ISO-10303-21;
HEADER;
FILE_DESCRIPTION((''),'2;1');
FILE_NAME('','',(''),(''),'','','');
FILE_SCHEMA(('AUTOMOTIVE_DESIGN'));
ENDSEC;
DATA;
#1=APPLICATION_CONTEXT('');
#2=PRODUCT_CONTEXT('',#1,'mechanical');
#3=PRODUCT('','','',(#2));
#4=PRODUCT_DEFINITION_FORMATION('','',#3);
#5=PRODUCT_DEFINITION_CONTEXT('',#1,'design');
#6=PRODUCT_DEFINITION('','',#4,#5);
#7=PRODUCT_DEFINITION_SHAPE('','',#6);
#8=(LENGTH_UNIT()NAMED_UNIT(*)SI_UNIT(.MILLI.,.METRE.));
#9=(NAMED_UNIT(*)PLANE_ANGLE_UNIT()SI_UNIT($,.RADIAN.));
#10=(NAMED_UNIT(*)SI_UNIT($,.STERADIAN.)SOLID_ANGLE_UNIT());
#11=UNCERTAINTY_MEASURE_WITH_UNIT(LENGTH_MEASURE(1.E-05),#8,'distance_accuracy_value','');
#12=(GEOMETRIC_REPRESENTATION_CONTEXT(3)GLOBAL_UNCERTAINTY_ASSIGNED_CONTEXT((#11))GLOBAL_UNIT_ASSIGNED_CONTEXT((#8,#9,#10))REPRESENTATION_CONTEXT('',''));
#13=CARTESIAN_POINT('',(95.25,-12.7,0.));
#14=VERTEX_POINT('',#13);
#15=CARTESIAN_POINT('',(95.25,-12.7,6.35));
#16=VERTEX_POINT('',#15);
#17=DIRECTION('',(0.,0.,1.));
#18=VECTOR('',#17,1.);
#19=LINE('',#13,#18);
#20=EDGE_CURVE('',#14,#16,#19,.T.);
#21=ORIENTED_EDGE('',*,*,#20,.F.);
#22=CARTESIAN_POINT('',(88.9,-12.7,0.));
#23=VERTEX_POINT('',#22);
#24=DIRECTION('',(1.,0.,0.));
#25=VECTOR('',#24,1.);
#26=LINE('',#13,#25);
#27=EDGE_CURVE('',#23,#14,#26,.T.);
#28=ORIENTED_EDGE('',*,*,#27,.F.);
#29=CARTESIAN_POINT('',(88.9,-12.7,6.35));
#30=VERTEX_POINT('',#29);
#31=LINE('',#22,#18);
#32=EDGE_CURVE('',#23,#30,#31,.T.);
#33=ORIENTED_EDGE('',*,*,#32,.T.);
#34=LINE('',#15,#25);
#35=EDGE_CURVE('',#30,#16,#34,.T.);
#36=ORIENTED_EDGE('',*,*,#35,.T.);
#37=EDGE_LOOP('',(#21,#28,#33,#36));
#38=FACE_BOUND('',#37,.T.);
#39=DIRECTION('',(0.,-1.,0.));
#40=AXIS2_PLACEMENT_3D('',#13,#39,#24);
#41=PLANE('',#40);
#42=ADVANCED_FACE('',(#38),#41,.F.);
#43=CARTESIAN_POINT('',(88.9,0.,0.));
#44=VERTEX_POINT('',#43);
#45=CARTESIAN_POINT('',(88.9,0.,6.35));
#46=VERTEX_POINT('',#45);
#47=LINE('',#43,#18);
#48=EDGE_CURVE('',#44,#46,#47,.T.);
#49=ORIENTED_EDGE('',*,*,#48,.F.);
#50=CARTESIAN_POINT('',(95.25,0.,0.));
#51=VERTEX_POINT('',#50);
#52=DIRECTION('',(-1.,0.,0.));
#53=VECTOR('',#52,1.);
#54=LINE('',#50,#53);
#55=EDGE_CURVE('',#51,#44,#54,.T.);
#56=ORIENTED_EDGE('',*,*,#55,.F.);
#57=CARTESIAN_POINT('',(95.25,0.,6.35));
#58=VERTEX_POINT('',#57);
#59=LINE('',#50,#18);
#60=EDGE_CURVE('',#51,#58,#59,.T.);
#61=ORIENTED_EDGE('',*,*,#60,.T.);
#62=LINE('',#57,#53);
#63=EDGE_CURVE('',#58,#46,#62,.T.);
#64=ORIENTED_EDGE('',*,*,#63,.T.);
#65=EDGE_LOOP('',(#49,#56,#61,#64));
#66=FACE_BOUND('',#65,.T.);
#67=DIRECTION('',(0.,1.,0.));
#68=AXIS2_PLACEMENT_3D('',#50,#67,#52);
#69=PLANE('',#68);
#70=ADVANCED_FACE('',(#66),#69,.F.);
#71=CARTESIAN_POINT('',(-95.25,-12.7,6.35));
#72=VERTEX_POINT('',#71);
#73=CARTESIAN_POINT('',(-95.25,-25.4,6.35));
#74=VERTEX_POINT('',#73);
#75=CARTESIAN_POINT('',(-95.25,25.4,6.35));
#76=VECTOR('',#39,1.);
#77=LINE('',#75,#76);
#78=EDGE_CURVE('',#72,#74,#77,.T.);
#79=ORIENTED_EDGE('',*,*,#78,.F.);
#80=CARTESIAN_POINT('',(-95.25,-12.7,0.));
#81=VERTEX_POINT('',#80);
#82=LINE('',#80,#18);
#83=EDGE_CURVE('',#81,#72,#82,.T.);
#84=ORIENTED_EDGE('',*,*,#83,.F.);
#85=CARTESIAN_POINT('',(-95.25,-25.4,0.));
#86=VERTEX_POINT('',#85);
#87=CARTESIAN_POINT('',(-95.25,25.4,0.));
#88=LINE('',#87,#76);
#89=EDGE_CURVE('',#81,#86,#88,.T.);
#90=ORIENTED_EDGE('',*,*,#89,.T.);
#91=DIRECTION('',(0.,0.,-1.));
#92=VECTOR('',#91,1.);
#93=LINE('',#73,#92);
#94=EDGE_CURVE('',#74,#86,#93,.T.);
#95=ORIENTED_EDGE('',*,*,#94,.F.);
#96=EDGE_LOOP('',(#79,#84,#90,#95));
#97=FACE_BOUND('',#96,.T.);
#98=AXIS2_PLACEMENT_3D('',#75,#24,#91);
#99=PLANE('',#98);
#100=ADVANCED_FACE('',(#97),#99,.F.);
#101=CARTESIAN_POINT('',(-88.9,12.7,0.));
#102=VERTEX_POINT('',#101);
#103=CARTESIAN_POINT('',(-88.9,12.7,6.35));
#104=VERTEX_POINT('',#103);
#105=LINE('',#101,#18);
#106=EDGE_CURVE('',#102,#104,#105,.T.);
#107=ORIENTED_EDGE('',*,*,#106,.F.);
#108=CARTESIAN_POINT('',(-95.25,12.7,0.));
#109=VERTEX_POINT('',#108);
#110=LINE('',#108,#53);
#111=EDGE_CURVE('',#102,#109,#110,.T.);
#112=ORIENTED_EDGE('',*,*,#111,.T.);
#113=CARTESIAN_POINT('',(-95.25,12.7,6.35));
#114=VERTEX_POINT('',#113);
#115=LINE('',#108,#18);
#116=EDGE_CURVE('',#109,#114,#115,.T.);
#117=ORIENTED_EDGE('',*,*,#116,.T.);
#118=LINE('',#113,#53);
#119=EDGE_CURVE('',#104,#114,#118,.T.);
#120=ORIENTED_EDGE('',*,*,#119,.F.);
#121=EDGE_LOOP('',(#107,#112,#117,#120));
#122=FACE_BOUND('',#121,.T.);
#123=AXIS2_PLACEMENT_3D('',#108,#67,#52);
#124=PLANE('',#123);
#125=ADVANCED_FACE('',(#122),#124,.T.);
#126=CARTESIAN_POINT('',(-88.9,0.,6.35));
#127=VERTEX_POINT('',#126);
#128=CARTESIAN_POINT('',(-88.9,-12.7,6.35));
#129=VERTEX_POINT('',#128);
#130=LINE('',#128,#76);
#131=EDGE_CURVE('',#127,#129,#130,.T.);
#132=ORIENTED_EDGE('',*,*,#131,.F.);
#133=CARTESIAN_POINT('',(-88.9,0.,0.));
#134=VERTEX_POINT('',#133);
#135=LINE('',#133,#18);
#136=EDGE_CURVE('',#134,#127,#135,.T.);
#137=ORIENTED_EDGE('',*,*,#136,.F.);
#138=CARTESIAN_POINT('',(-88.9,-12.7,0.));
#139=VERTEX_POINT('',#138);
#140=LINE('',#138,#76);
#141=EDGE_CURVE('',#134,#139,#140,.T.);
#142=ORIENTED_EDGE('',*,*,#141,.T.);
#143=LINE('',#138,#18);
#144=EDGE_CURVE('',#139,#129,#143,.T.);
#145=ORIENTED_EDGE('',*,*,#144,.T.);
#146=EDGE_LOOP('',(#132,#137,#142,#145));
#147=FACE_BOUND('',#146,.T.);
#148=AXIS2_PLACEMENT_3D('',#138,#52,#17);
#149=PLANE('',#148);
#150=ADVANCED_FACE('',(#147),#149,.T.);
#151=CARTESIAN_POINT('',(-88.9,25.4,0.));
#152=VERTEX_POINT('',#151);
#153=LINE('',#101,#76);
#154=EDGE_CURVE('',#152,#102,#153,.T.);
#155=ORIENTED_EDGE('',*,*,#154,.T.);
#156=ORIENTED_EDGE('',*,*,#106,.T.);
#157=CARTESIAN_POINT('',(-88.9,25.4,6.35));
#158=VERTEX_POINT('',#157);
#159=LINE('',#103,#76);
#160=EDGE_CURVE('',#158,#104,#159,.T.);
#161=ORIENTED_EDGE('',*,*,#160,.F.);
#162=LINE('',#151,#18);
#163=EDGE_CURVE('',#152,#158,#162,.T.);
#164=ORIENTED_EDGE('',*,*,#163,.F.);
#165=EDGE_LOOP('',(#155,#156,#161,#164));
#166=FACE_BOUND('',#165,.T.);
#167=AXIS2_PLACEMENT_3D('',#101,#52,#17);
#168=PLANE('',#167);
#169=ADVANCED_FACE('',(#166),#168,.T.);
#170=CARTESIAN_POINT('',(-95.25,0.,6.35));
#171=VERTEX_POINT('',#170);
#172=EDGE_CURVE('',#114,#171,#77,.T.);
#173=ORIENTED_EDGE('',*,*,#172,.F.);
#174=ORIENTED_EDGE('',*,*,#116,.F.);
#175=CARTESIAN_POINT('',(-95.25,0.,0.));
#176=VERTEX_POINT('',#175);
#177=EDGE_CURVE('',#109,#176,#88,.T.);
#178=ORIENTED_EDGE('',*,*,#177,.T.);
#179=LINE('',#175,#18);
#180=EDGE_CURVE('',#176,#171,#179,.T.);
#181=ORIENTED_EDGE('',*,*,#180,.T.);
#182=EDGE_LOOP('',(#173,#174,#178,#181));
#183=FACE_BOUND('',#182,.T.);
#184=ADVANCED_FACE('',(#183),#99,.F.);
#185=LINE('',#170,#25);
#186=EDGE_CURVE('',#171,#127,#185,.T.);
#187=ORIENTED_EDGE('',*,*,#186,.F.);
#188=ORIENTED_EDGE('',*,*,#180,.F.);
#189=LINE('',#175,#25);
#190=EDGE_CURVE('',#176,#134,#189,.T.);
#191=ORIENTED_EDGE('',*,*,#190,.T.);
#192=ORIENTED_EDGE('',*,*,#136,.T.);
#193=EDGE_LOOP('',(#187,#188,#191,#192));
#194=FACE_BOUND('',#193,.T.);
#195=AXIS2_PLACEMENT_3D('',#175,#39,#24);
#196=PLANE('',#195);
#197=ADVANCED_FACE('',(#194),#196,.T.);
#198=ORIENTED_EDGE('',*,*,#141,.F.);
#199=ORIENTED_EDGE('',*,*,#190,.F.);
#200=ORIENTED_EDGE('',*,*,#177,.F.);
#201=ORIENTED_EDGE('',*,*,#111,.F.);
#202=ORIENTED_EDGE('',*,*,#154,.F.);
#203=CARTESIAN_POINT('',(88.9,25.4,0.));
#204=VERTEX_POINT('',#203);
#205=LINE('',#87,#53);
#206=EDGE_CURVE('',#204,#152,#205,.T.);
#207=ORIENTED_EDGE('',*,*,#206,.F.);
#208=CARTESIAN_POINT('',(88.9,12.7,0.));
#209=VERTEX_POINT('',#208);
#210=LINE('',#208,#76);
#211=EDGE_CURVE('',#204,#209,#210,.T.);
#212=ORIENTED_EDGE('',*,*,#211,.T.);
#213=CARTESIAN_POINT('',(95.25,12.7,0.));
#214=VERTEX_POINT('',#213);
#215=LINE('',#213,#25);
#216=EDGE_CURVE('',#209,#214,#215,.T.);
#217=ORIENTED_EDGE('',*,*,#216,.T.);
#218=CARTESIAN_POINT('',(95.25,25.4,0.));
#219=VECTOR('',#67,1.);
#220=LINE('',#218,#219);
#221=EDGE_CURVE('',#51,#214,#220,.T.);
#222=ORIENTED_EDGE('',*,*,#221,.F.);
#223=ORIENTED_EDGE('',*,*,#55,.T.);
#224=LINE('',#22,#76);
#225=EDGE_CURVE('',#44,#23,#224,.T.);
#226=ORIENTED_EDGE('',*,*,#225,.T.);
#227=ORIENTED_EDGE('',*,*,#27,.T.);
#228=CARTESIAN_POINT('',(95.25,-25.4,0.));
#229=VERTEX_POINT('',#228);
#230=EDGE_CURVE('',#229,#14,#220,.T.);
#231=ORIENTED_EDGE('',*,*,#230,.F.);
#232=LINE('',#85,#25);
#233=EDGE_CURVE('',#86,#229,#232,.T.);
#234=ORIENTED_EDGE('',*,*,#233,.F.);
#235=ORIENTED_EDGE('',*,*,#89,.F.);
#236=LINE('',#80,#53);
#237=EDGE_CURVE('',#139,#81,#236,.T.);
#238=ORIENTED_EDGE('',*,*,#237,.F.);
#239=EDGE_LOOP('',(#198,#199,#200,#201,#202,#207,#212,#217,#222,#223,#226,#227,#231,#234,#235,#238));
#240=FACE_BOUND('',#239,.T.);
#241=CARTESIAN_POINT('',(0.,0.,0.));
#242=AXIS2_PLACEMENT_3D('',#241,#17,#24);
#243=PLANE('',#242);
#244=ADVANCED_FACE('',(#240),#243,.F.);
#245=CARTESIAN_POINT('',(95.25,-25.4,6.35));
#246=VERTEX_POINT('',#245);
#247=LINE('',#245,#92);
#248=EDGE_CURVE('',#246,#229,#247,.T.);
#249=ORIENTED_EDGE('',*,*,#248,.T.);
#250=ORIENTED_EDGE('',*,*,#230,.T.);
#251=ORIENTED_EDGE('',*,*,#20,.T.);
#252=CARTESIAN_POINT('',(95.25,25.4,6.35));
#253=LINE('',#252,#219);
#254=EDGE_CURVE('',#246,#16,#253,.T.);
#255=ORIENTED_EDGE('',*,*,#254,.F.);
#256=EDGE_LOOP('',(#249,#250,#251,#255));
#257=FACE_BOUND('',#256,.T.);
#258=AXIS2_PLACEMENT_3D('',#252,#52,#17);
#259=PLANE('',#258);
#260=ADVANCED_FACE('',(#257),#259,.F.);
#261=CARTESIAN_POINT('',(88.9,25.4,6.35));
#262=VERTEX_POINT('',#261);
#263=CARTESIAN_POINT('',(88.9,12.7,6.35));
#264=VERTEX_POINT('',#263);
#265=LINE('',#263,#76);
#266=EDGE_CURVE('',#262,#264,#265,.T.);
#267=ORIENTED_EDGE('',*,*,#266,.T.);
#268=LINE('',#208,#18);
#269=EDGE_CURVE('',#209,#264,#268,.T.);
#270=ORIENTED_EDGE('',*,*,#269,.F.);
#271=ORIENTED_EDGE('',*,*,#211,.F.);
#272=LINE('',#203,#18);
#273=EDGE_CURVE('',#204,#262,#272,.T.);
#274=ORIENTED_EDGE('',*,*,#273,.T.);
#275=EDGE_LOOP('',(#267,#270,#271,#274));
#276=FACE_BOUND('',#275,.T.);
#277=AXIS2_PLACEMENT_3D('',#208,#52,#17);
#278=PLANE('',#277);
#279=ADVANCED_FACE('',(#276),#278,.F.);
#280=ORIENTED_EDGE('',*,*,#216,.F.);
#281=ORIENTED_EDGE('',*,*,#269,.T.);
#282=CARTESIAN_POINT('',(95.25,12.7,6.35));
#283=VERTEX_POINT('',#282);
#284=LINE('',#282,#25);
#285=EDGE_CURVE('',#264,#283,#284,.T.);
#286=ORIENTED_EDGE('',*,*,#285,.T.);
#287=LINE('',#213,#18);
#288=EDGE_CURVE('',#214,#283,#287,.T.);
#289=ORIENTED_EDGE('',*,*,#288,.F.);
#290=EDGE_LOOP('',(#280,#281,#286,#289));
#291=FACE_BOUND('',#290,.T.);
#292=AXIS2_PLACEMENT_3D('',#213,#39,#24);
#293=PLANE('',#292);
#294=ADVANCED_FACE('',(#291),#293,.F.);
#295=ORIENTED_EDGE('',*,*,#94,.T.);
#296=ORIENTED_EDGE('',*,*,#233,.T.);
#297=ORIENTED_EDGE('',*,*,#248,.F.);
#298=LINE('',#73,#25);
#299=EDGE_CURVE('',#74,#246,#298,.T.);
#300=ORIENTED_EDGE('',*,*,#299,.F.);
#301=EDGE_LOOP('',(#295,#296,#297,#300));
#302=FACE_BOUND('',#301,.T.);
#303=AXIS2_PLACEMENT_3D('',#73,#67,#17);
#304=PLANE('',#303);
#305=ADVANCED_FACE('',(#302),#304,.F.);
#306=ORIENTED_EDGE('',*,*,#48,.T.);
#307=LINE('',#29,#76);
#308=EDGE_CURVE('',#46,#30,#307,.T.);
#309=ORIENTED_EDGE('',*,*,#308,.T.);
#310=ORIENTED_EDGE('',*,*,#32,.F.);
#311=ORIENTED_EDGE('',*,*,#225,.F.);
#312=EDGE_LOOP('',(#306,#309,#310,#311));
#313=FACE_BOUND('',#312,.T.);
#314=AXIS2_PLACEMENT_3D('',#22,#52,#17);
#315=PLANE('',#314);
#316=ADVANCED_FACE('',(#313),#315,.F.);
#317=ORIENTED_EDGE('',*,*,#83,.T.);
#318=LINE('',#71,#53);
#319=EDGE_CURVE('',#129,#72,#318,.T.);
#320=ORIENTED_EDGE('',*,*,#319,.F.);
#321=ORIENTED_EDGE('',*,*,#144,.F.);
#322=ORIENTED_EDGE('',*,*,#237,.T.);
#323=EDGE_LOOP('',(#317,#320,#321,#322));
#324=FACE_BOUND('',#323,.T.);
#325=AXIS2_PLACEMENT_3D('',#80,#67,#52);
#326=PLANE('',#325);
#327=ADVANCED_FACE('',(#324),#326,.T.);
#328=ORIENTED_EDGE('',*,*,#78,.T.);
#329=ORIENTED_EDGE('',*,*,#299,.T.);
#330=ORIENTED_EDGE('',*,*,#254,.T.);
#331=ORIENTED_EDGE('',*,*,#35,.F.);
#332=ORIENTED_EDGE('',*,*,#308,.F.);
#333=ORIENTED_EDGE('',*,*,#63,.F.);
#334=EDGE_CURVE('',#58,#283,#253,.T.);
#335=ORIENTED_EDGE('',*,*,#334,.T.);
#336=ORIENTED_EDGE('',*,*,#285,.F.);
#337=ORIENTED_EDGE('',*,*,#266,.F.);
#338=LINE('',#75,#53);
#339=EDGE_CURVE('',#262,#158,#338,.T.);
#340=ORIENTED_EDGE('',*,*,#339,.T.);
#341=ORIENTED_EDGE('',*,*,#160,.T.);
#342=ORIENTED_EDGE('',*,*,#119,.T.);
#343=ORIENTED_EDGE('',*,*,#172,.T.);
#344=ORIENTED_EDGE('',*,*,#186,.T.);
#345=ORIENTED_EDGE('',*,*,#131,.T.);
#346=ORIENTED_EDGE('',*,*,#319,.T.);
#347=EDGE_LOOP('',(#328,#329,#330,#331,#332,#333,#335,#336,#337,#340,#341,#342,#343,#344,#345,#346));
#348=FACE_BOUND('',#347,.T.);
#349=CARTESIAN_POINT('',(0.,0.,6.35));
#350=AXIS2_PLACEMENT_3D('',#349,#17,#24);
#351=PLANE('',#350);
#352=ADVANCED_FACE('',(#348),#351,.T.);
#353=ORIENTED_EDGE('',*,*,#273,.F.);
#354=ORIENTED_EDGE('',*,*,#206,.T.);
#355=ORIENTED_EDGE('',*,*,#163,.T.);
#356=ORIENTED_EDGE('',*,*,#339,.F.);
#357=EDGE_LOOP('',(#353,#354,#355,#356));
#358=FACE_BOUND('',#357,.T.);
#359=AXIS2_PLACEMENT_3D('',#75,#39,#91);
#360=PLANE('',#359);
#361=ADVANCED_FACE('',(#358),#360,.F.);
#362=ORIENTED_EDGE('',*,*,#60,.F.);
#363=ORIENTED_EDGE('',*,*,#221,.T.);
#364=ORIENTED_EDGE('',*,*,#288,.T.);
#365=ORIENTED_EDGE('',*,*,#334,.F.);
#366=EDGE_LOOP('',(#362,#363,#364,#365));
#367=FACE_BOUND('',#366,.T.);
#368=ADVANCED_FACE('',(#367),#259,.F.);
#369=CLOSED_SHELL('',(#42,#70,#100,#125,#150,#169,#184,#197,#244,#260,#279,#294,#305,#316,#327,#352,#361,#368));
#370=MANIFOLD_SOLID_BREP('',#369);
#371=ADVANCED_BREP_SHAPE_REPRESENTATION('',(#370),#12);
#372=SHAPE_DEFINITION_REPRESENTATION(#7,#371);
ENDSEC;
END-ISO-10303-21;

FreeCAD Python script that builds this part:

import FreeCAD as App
import Part
import Sketcher
from FreeCAD import Vector
Q = App.Units.Quantity


def add_polygon(sketch, points):
    """Adds a closed chain of lines whose ends are joined by coincident constraints."""
    first, n = sketch.GeometryCount, len(points)
    for a, b in zip(points, points[1:] + points[:1]):
        sketch.addGeometry(Part.LineSegment(App.Vector(*a, 0), App.Vector(*b, 0)), False)
    for i in range(n):
        sketch.addConstraint(Sketcher.Constraint("Coincident", first + i, 2, first + (i + 1) % n, 1))

doc = App.newDocument("Part")
params = doc.addObject("Spreadsheet::Sheet", "Params")
for row, (alias, value) in enumerate([
    ("sketch1_height", "2 in"),
    ("sketch1_width", "7.5 in"),
    ("pad1_length", "0.25 in"),
    ("sketch2_height", "0.5 in"),
    ("sketch2_width", "0.25 in"),
    ("linearpattern_pitch", "1 in"),
    ("sketch3_height", "0.5 in"),
    ("sketch3_width", "0.25 in"),
], start=1):
    params.set(f"A{row}", alias)
    params.set(f"B{row}", "=" + value)
    params.setAlias(f"B{row}", alias)

body = doc.addObject("PartDesign::Body", "Body")

sketch1 = doc.addObject("Sketcher::SketchObject", "Sketch")
body.addObject(sketch1)
sketch1.AttachmentSupport = (doc.XY_Plane, [""])
sketch1.MapMode = "FlatFace"
add_polygon(sketch1, [(-95.25, 25.4), (-95.25, -25.4), (95.25, -25.4), (95.25, 25.4)])
sketch1.addConstraint([
    Sketcher.Constraint("Vertical", 0),
    Sketcher.Constraint("Horizontal", 1),
    Sketcher.Constraint("Vertical", 2),
    Sketcher.Constraint("Horizontal", 3),
    Sketcher.Constraint("Symmetric", 0, 2, 2, 2, -1, 1),
    Sketcher.Constraint("DistanceY", 0, 2, 0, 1, Q("2 in")),
    Sketcher.Constraint("DistanceX", 1, 1, 1, 2, Q("7.5 in")),
])
sketch1.setExpression("Constraints[9]", "Params.sketch1_height")
sketch1.setExpression("Constraints[10]", "Params.sketch1_width")
pad1 = doc.addObject("PartDesign::Pad", "Pad")
body.addObject(pad1)
pad1.Profile = sketch1
pad1.setExpression("Length", "Params.pad1_length")

sketch2 = doc.addObject("Sketcher::SketchObject", "Sketch001")
body.addObject(sketch2)
sketch2.AttachmentSupport = (doc.XY_Plane, [""])
sketch2.MapMode = "FlatFace"
sketch2.AttachmentOffset = App.Placement(Vector(0, 0, 0.25 * 25.4), App.Rotation())
add_polygon(sketch2, [(88.9, 0), (88.9, -12.7), (95.25, -12.7), (95.25, 0)])
sketch2.addConstraint([
    Sketcher.Constraint("Vertical", 0),
    Sketcher.Constraint("Horizontal", 1),
    Sketcher.Constraint("Vertical", 2),
    Sketcher.Constraint("Horizontal", 3),
    Sketcher.Constraint("PointOnObject", 2, 2, -1),
    Sketcher.Constraint("DistanceY", 0, 2, 0, 1, Q("0.5 in")),
    Sketcher.Constraint("DistanceX", 1, 1, 1, 2, Q("0.25 in")),
    Sketcher.Constraint("DistanceX", -1, 1, 0, 2, Q("3.5 in")),
])
sketch2.setExpression("Constraints[9]", "Params.sketch2_height")
sketch2.setExpression("Constraints[10]", "Params.sketch2_width")
pocket1 = doc.addObject("PartDesign::Pocket", "Pocket")
body.addObject(pocket1)
pocket1.Profile = sketch2
pocket1.Type = "ThroughAll"
doc.recompute()

linearpattern = doc.addObject("PartDesign::LinearPattern", "LinearPattern")
body.addObject(linearpattern)
linearpattern.Originals = [pocket1]
linearpattern.Direction = (doc.Y_Axis, [""])
linearpattern.Mode = "offset"
linearpattern.setExpression("Offset", "Params.linearpattern_pitch")
linearpattern.Occurrences = 2
body.Tip = linearpattern
doc.recompute()

mirrored = doc.addObject("PartDesign::Mirrored", "Mirrored")
body.addObject(mirrored)
mirrored.Originals = [pocket1]
mirrored.MirrorPlane = (doc.YZ_Plane, [""])
body.Tip = mirrored

sketch3 = doc.addObject("Sketcher::SketchObject", "Sketch002")
body.addObject(sketch3)
sketch3.AttachmentSupport = (doc.XY_Plane, [""])
sketch3.MapMode = "FlatFace"
sketch3.AttachmentOffset = App.Placement(Vector(0, 0, 0.25 * 25.4), App.Rotation())
add_polygon(sketch3, [(-88.9, 12.7), (-88.9, 25.4), (-95.25, 25.4), (-95.25, 12.7)])
sketch3.addConstraint([
    Sketcher.Constraint("Vertical", 0),
    Sketcher.Constraint("Horizontal", 1),
    Sketcher.Constraint("Vertical", 2),
    Sketcher.Constraint("Horizontal", 3),
    Sketcher.Constraint("DistanceY", 0, 1, 0, 2, Q("0.5 in")),
    Sketcher.Constraint("DistanceY", -1, 1, 0, 2, Q("1 in")),
    Sketcher.Constraint("DistanceX", 1, 2, 1, 1, Q("0.25 in")),
    Sketcher.Constraint("DistanceX", 0, 2, -1, 1, Q("3.5 in")),
])
sketch3.setExpression("Constraints[8]", "Params.sketch3_height")
sketch3.setExpression("Constraints[10]", "Params.sketch3_width")
pocket2 = doc.addObject("PartDesign::Pocket", "Pocket001")
body.addObject(pocket2)
pocket2.Profile = sketch3
pocket2.Type = "ThroughAll"

doc.recompute()
